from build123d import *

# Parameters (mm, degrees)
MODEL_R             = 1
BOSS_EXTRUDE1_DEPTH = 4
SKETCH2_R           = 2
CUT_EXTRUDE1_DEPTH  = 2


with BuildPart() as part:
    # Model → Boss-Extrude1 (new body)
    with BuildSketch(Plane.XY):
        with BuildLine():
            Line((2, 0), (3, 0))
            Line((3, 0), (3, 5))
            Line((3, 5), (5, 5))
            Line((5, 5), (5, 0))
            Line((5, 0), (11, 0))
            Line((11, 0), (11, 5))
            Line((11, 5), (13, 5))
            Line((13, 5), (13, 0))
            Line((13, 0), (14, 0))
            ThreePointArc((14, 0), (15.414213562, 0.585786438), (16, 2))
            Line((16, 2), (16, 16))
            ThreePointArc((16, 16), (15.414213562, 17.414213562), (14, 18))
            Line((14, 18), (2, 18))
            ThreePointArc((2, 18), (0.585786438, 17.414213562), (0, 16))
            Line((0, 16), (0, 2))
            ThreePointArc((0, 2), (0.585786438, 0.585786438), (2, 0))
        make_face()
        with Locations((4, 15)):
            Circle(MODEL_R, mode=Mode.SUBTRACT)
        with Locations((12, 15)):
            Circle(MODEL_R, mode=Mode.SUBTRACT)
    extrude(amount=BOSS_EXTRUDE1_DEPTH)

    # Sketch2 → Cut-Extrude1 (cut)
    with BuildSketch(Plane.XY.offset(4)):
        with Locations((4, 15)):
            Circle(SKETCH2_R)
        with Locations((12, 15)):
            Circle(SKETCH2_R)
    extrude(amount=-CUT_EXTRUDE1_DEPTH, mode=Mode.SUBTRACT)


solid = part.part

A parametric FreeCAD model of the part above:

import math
import FreeCAD as App
import Part
import Sketcher

V = App.Vector
Q = App.Units.Quantity

doc = App.newDocument("Part")
body = doc.addObject("PartDesign::Body", "Body")

# Sketch on XY plane
sketch1 = body.newObject("Sketcher::SketchObject", "Sketch")
sketch1.AttachmentSupport = (doc.getObject("XY_Plane"), [""])
sketch1.MapMode = "FlatFace"
sketch1.addGeometry(Part.LineSegment(V(2, 0, 0), V(3, 0, 0)), False)
sketch1.addGeometry(Part.LineSegment(V(3, 0, 0), V(3, 5, 0)), False)
sketch1.addGeometry(Part.LineSegment(V(3, 5, 0), V(5, 5, 0)), False)
sketch1.addGeometry(Part.LineSegment(V(5, 5, 0), V(5, 0, 0)), False)
sketch1.addGeometry(Part.LineSegment(V(5, 0, 0), V(11, 0, 0)), False)
sketch1.addGeometry(Part.LineSegment(V(11, 0, 0), V(11, 5, 0)), False)
sketch1.addGeometry(Part.LineSegment(V(11, 5, 0), V(13, 5, 0)), False)
sketch1.addGeometry(Part.LineSegment(V(13, 5, 0), V(13, 0, 0)), False)
sketch1.addGeometry(Part.LineSegment(V(13, 0, 0), V(14, 0, 0)), False)
sketch1.addGeometry(Part.ArcOfCircle(Part.Circle(V(14, 2, 0), V(0, 0, 1), 2), math.radians(-90), math.radians(0)), False)
sketch1.addGeometry(Part.LineSegment(V(16, 2, 0), V(16, 16, 0)), False)
sketch1.addGeometry(Part.ArcOfCircle(Part.Circle(V(14, 16, 0), V(0, 0, 1), 2), math.radians(0), math.radians(90)), False)
sketch1.addGeometry(Part.LineSegment(V(14, 18, 0), V(2, 18, 0)), False)
sketch1.addGeometry(Part.ArcOfCircle(Part.Circle(V(2, 16, 0), V(0, 0, 1), 2), math.radians(90), math.radians(180)), False)
sketch1.addGeometry(Part.LineSegment(V(0, 16, 0), V(0, 2, 0)), False)
sketch1.addGeometry(Part.ArcOfCircle(Part.Circle(V(2, 2, 0), V(0, 0, 1), 2), math.radians(-180), math.radians(-90)), False)
sketch1.addGeometry(Part.Circle(V(4, 15, 0), V(0, 0, 1), 1), False)
sketch1.addGeometry(Part.Circle(V(12, 15, 0), V(0, 0, 1), 1), False)
sketch1.addConstraint(Sketcher.Constraint("Coincident", 0, 2, 1, 1))
sketch1.addConstraint(Sketcher.Constraint("Coincident", 1, 2, 2, 1))
sketch1.addConstraint(Sketcher.Constraint("Coincident", 2, 2, 3, 1))
sketch1.addConstraint(Sketcher.Constraint("Coincident", 3, 2, 4, 1))
sketch1.addConstraint(Sketcher.Constraint("Coincident", 4, 2, 5, 1))
sketch1.addConstraint(Sketcher.Constraint("Coincident", 5, 2, 6, 1))
sketch1.addConstraint(Sketcher.Constraint("Coincident", 6, 2, 7, 1))
sketch1.addConstraint(Sketcher.Constraint("Coincident", 7, 2, 8, 1))
sketch1.addConstraint(Sketcher.Constraint("Tangent", 8, 2, 9, 1))
sketch1.addConstraint(Sketcher.Constraint("Tangent", 9, 2, 10, 1))
sketch1.addConstraint(Sketcher.Constraint("Tangent", 10, 2, 11, 1))
sketch1.addConstraint(Sketcher.Constraint("Tangent", 11, 2, 12, 1))
sketch1.addConstraint(Sketcher.Constraint("Tangent", 12, 2, 13, 1))
sketch1.addConstraint(Sketcher.Constraint("Tangent", 13, 2, 14, 1))
sketch1.addConstraint(Sketcher.Constraint("Tangent", 14, 2, 15, 1))
sketch1.addConstraint(Sketcher.Constraint("Tangent", 15, 2, 0, 1))
sketch1.addConstraint(Sketcher.Constraint("Horizontal", 0))
sketch1.addConstraint(Sketcher.Constraint("Vertical", 1))
sketch1.addConstraint(Sketcher.Constraint("Horizontal", 2))
sketch1.addConstraint(Sketcher.Constraint("Vertical", 3))
sketch1.addConstraint(Sketcher.Constraint("Horizontal", 4))
sketch1.addConstraint(Sketcher.Constraint("Vertical", 5))
sketch1.addConstraint(Sketcher.Constraint("Horizontal", 6))
sketch1.addConstraint(Sketcher.Constraint("Vertical", 7))
sketch1.addConstraint(Sketcher.Constraint("Horizontal", 8))
sketch1.addConstraint(Sketcher.Constraint("Vertical", 10))
sketch1.addConstraint(Sketcher.Constraint("Horizontal", 12))
sketch1.addConstraint(Sketcher.Constraint("Vertical", 14))
sketch1.addConstraint(Sketcher.Constraint("Equal", 9, 11))
sketch1.addConstraint(Sketcher.Constraint("Equal", 11, 13))
sketch1.addConstraint(Sketcher.Constraint("Equal", 13, 15))
sketch1.addConstraint(Sketcher.Constraint("Equal", 16, 17))
sketch1.addConstraint(Sketcher.Constraint("PointOnObject", 0, 2, -1))
sketch1.addConstraint(Sketcher.Constraint("PointOnObject", 3, 2, -1))
sketch1.addConstraint(Sketcher.Constraint("PointOnObject", 7, 2, -1))
sketch1.addConstraint(Sketcher.Constraint("PointOnObject", 13, 2, -2))
sketch1.addConstraint(Sketcher.Constraint("Horizontal", 16, 3, 17, 3))
sketch1.addConstraint(Sketcher.Constraint("Horizontal", 2, 2, 5, 2))
sketch1.addConstraint(Sketcher.Constraint("Equal", 2, 6))
sketch1.addConstraint(Sketcher.Constraint("Equal", 0, 8))
sketch1.addConstraint(Sketcher.Constraint("Diameter", 16, Q("2 mm")))
sketch1.addConstraint(Sketcher.Constraint("Radius", 9, Q("2 mm")))
sketch1.addConstraint(Sketcher.Constraint("DistanceX", 0, 1, 0, 2, Q("1 mm")))
sketch1.addConstraint(Sketcher.Constraint("DistanceX", 2, 1, 2, 2, Q("2 mm")))
sketch1.addConstraint(Sketcher.Constraint("DistanceX", 4, 1, 4, 2, Q("6 mm")))
sketch1.addConstraint(Sketcher.Constraint("DistanceY", 1, 1, 1, 2, Q("5 mm")))
sketch1.addConstraint(Sketcher.Constraint("DistanceY", 10, 1, 10, 2, Q("14 mm")))
sketch1.addConstraint(Sketcher.Constraint("DistanceX", -1, 1, 16, 3, Q("4 mm")))
sketch1.addConstraint(Sketcher.Constraint("DistanceY", -1, 1, 16, 3, Q("15 mm")))
sketch1.addConstraint(Sketcher.Constraint("DistanceX", -1, 1, 17, 3, Q("12 mm")))
pad1 = body.newObject("PartDesign::Pad", "Pad")
pad1.Profile = sketch1
pad1.Length = 4

# Sketch on XY plane
sketch2 = body.newObject("Sketcher::SketchObject", "Sketch001")
sketch2.AttachmentSupport = (doc.getObject("XY_Plane"), [""])
sketch2.MapMode = "FlatFace"
sketch2.AttachmentOffset = App.Placement(V(0, 0, 4), App.Rotation())
sketch2.addGeometry(Part.Circle(V(4, 15, 0), V(0, 0, 1), 2), False)
sketch2.addGeometry(Part.Circle(V(12, 15, 0), V(0, 0, 1), 2), False)
sketch2.addConstraint(Sketcher.Constraint("Equal", 0, 1))
sketch2.addConstraint(Sketcher.Constraint("Horizontal", 0, 3, 1, 3))
sketch2.addConstraint(Sketcher.Constraint("Diameter", 0, Q("4 mm")))
sketch2.addConstraint(Sketcher.Constraint("DistanceX", -1, 1, 0, 3, Q("4 mm")))
sketch2.addConstraint(Sketcher.Constraint("DistanceY", -1, 1, 0, 3, Q("15 mm")))
sketch2.addConstraint(Sketcher.Constraint("DistanceX", -1, 1, 1, 3, Q("12 mm")))
pocket1 = body.newObject("PartDesign::Pocket", "Pocket")
pocket1.Profile = sketch2
pocket1.Length = 2

doc.recompute()
